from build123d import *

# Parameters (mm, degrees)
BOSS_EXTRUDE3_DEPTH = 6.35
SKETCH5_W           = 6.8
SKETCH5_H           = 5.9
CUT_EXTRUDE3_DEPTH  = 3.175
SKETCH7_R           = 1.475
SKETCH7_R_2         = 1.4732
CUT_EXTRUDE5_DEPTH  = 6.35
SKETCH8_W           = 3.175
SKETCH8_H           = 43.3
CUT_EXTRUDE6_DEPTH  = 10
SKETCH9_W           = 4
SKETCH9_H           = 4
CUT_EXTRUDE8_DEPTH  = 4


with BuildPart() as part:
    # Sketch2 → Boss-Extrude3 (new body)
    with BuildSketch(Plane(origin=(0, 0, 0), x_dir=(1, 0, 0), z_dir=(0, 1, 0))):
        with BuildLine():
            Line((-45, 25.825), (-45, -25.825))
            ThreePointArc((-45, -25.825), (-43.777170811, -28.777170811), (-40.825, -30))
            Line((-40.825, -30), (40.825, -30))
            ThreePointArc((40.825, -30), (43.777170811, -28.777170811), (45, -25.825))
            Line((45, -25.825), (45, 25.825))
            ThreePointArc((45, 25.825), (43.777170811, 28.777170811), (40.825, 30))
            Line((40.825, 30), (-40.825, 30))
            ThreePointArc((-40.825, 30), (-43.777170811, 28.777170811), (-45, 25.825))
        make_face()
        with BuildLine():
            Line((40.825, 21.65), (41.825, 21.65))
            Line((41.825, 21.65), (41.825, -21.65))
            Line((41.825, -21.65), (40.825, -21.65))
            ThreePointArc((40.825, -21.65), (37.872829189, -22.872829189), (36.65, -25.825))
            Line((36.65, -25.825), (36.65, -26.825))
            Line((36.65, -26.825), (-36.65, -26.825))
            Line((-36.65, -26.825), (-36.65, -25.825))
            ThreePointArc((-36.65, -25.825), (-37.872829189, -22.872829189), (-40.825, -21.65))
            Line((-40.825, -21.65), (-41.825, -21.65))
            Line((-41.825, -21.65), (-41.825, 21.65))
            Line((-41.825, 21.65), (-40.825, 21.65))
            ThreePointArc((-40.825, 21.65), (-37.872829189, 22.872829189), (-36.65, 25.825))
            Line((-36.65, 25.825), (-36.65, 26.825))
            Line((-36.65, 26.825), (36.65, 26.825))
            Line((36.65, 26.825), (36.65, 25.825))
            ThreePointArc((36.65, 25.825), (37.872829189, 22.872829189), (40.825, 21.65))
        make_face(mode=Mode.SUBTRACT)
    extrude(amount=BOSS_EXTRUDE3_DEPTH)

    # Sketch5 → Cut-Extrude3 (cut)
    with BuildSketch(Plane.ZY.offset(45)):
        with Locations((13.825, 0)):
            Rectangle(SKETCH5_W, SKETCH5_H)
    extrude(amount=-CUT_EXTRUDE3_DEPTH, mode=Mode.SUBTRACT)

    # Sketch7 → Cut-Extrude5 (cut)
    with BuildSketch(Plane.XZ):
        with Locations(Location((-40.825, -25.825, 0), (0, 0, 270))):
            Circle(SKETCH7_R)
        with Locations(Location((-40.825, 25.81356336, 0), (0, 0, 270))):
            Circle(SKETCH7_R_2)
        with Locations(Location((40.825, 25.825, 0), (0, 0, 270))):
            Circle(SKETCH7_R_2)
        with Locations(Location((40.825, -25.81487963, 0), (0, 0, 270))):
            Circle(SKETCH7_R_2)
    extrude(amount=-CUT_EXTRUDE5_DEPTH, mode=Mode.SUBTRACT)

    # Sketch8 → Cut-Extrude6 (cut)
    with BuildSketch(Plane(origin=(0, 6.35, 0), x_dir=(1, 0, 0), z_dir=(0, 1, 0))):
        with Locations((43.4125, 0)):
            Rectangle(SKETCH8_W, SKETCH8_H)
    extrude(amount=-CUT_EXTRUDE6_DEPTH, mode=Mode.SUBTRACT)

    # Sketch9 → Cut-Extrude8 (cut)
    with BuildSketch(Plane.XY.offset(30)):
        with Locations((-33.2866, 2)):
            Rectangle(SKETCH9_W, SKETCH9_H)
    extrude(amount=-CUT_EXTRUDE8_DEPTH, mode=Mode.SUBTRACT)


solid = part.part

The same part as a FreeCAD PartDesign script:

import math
import FreeCAD as App
import Part
import Sketcher
Q = App.Units.Quantity


def add_polygon(sketch, points):
    """Adds a closed chain of lines whose ends are joined by coincident constraints."""
    first, n = sketch.GeometryCount, len(points)
    for a, b in zip(points, points[1:] + points[:1]):
        sketch.addGeometry(Part.LineSegment(App.Vector(*a, 0), App.Vector(*b, 0)), False)
    for i in range(n):
        sketch.addConstraint(Sketcher.Constraint("Coincident", first + i, 2, first + (i + 1) % n, 1))

doc = App.newDocument("Part")
body = doc.addObject("PartDesign::Body", "Body")

sketch1 = body.newObject("Sketcher::SketchObject", "Sketch")
sketch1.AttachmentSupport = (doc.getObject("XZ_Plane"), [""])
sketch1.MapMode = "FlatFace"
sketch1.addGeometry(Part.LineSegment(App.Vector(-45, -25.825, 0), App.Vector(-45, 25.825, 0)), False)
sketch1.addGeometry(Part.ArcOfCircle(Part.Circle(App.Vector(-40.825, 25.825, 0), App.Vector(0, 0, 1), 4.175), math.radians(90), math.radians(180)), False)
sketch1.addGeometry(Part.LineSegment(App.Vector(-40.825, 30, 0), App.Vector(40.825, 30, 0)), False)
sketch1.addGeometry(Part.ArcOfCircle(Part.Circle(App.Vector(40.825, 25.825, 0), App.Vector(0, 0, 1), 4.175), math.radians(0), math.radians(90)), False)
sketch1.addGeometry(Part.LineSegment(App.Vector(45, 25.825, 0), App.Vector(45, -25.825, 0)), False)
sketch1.addGeometry(Part.ArcOfCircle(Part.Circle(App.Vector(40.825, -25.825, 0), App.Vector(0, 0, 1), 4.175), math.radians(-90), math.radians(0)), False)
sketch1.addGeometry(Part.LineSegment(App.Vector(40.825, -30, 0), App.Vector(-40.825, -30, 0)), False)
sketch1.addGeometry(Part.ArcOfCircle(Part.Circle(App.Vector(-40.825, -25.825, 0), App.Vector(0, 0, 1), 4.175), math.radians(-180), math.radians(-90)), False)
sketch1.addGeometry(Part.ArcOfCircle(Part.Circle(App.Vector(40.825, -25.825, 0), App.Vector(0, 0, 1), 4.175), math.radians(90), math.radians(180)), False)
sketch1.addGeometry(Part.LineSegment(App.Vector(40.825, -21.65, 0), App.Vector(41.825, -21.65, 0)), False)
sketch1.addGeometry(Part.LineSegment(App.Vector(41.825, -21.65, 0), App.Vector(41.825, 21.65, 0)), False)
sketch1.addGeometry(Part.LineSegment(App.Vector(41.825, 21.65, 0), App.Vector(40.825, 21.65, 0)), False)
sketch1.addGeometry(Part.ArcOfCircle(Part.Circle(App.Vector(40.825, 25.825, 0), App.Vector(0, 0, 1), 4.175), math.radians(-180), math.radians(-90)), False)
sketch1.addGeometry(Part.LineSegment(App.Vector(36.65, 25.825, 0), App.Vector(36.65, 26.825, 0)), False)
sketch1.addGeometry(Part.LineSegment(App.Vector(36.65, 26.825, 0), App.Vector(-36.65, 26.825, 0)), False)
sketch1.addGeometry(Part.LineSegment(App.Vector(-36.65, 26.825, 0), App.Vector(-36.65, 25.825, 0)), False)
sketch1.addGeometry(Part.ArcOfCircle(Part.Circle(App.Vector(-40.825, 25.825, 0), App.Vector(0, 0, 1), 4.175), math.radians(-90), math.radians(0)), False)
sketch1.addGeometry(Part.LineSegment(App.Vector(-40.825, 21.65, 0), App.Vector(-41.825, 21.65, 0)), False)
sketch1.addGeometry(Part.LineSegment(App.Vector(-41.825, 21.65, 0), App.Vector(-41.825, -21.65, 0)), False)
sketch1.addGeometry(Part.LineSegment(App.Vector(-41.825, -21.65, 0), App.Vector(-40.825, -21.65, 0)), False)
sketch1.addGeometry(Part.ArcOfCircle(Part.Circle(App.Vector(-40.825, -25.825, 0), App.Vector(0, 0, 1), 4.175), math.radians(0), math.radians(90)), False)
sketch1.addGeometry(Part.LineSegment(App.Vector(-36.65, -25.825, 0), App.Vector(-36.65, -26.825, 0)), False)
sketch1.addGeometry(Part.LineSegment(App.Vector(-36.65, -26.825, 0), App.Vector(36.65, -26.825, 0)), False)
sketch1.addGeometry(Part.LineSegment(App.Vector(36.65, -26.825, 0), App.Vector(36.65, -25.825, 0)), False)
sketch1.addConstraint(Sketcher.Constraint("Tangent", 0, 2, 1, 2))
sketch1.addConstraint(Sketcher.Constraint("Tangent", 1, 1, 2, 1))
sketch1.addConstraint(Sketcher.Constraint("Tangent", 2, 2, 3, 2))
sketch1.addConstraint(Sketcher.Constraint("Tangent", 3, 1, 4, 1))
sketch1.addConstraint(Sketcher.Constraint("Tangent", 4, 2, 5, 2))
sketch1.addConstraint(Sketcher.Constraint("Tangent", 5, 1, 6, 1))
sketch1.addConstraint(Sketcher.Constraint("Tangent", 6, 2, 7, 2))
sketch1.addConstraint(Sketcher.Constraint("Tangent", 7, 1, 0, 1))
sketch1.addConstraint(Sketcher.Constraint("Tangent", 8, 1, 9, 1))
sketch1.addConstraint(Sketcher.Constraint("Coincident", 9, 2, 10, 1))
sketch1.addConstraint(Sketcher.Constraint("Coincident", 10, 2, 11, 1))
sketch1.addConstraint(Sketcher.Constraint("Tangent", 11, 2, 12, 2))
sketch1.addConstraint(Sketcher.Constraint("Tangent", 12, 1, 13, 1))
sketch1.addConstraint(Sketcher.Constraint("Coincident", 13, 2, 14, 1))
sketch1.addConstraint(Sketcher.Constraint("Coincident", 14, 2, 15, 1))
sketch1.addConstraint(Sketcher.Constraint("Tangent", 15, 2, 16, 2))
sketch1.addConstraint(Sketcher.Constraint("Tangent", 16, 1, 17, 1))
sketch1.addConstraint(Sketcher.Constraint("Coincident", 17, 2, 18, 1))
sketch1.addConstraint(Sketcher.Constraint("Coincident", 18, 2, 19, 1))
sketch1.addConstraint(Sketcher.Constraint("Tangent", 19, 2, 20, 2))
sketch1.addConstraint(Sketcher.Constraint("Tangent", 20, 1, 21, 1))
sketch1.addConstraint(Sketcher.Constraint("Coincident", 21, 2, 22, 1))
sketch1.addConstraint(Sketcher.Constraint("Coincident", 22, 2, 23, 1))
sketch1.addConstraint(Sketcher.Constraint("Tangent", 23, 2, 8, 2))
sketch1.addConstraint(Sketcher.Constraint("Vertical", 0))
sketch1.addConstraint(Sketcher.Constraint("Horizontal", 2))
sketch1.addConstraint(Sketcher.Constraint("Vertical", 4))
sketch1.addConstraint(Sketcher.Constraint("Horizontal", 6))
sketch1.addConstraint(Sketcher.Constraint("Horizontal", 9))
sketch1.addConstraint(Sketcher.Constraint("Vertical", 10))
sketch1.addConstraint(Sketcher.Constraint("Horizontal", 11))
sketch1.addConstraint(Sketcher.Constraint("Vertical", 13))
sketch1.addConstraint(Sketcher.Constraint("Horizontal", 14))
sketch1.addConstraint(Sketcher.Constraint("Vertical", 15))
sketch1.addConstraint(Sketcher.Constraint("Horizontal", 17))
sketch1.addConstraint(Sketcher.Constraint("Vertical", 18))
sketch1.addConstraint(Sketcher.Constraint("Horizontal", 19))
sketch1.addConstraint(Sketcher.Constraint("Vertical", 21))
sketch1.addConstraint(Sketcher.Constraint("Horizontal", 22))
sketch1.addConstraint(Sketcher.Constraint("Vertical", 23))
sketch1.addConstraint(Sketcher.Constraint("Coincident", 8, 3, 5, 3))
sketch1.addConstraint(Sketcher.Constraint("Coincident", 12, 3, 3, 3))
sketch1.addConstraint(Sketcher.Constraint("Coincident", 16, 3, 1, 3))
sketch1.addConstraint(Sketcher.Constraint("Coincident", 20, 3, 7, 3))
sketch1.addConstraint(Sketcher.Constraint("Equal", 1, 3))
sketch1.addConstraint(Sketcher.Constraint("Equal", 3, 5))
sketch1.addConstraint(Sketcher.Constraint("Equal", 5, 7))
sketch1.addConstraint(Sketcher.Constraint("Equal", 7, 8))
sketch1.addConstraint(Sketcher.Constraint("Equal", 8, 12))
sketch1.addConstraint(Sketcher.Constraint("Equal", 12, 16))
sketch1.addConstraint(Sketcher.Constraint("Equal", 16, 20))
sketch1.addConstraint(Sketcher.Constraint("Symmetric", 1, 3, 5, 3, -1, 1))
sketch1.addConstraint(Sketcher.Constraint("Equal", 11, 17))
sketch1.addConstraint(Sketcher.Constraint("Equal", 19, 13))
sketch1.addConstraint(Sketcher.Constraint("Equal", 15, 21))
sketch1.addConstraint(Sketcher.Constraint("DistanceX", 9, 1, 9, 2, Q("1 mm")))
sketch1.addConstraint(Sketcher.Constraint("DistanceX", 14, 2, 14, 1, Q("73.3 mm")))
sketch1.addConstraint(Sketcher.Constraint("DistanceY", 10, 1, 10, 2, Q("43.3 mm")))
sketch1.addConstraint(Sketcher.Constraint("DistanceX", 0, 2, -1, 1, Q("45 mm")))
pad1 = body.newObject("PartDesign::Pad", "Pad")
pad1.Profile = sketch1
pad1.Length = 6.35
pad1.Reversed = True

sketch2 = body.newObject("Sketcher::SketchObject", "Sketch001")
sketch2.AttachmentSupport = (doc.getObject("YZ_Plane"), [""])
sketch2.MapMode = "FlatFace"
sketch2.AttachmentOffset = App.Placement(App.Vector(0, 0, -45), App.Rotation())
add_polygon(sketch2, [(2.95, 10.425), (-2.95, 10.425), (-2.95, 17.225), (2.95, 17.225)])
sketch2.addConstraint(Sketcher.Constraint("Horizontal", 0))
sketch2.addConstraint(Sketcher.Constraint("Vertical", 1))
sketch2.addConstraint(Sketcher.Constraint("Horizontal", 2))
sketch2.addConstraint(Sketcher.Constraint("Vertical", 3))
sketch2.addConstraint(Sketcher.Constraint("DistanceX", 0, 2, 0, 1, Q("5.9 mm")))
sketch2.addConstraint(Sketcher.Constraint("DistanceY", 1, 1, 1, 2, Q("6.8 mm")))
sketch2.addConstraint(Sketcher.Constraint("DistanceX", 0, 2, -1, 1, Q("2.95 mm")))
sketch2.addConstraint(Sketcher.Constraint("DistanceY", -1, 1, 0, 2, Q("10.425 mm")))
pocket1 = body.newObject("PartDesign::Pocket", "Pocket")
pocket1.Profile = sketch2
pocket1.Length = 3.175
pocket1.Reversed = True

sketch3 = body.newObject("Sketcher::SketchObject", "Sketch002")
sketch3.AttachmentSupport = (doc.getObject("XZ_Plane"), [""])
sketch3.MapMode = "FlatFace"
sketch3.addGeometry(Part.Circle(App.Vector(-40.825, -25.825, 0), App.Vector(0, 0, 1), 1.475), False)
sketch3.addGeometry(Part.Circle(App.Vector(-40.825, 25.813563, 0), App.Vector(0, 0, 1), 1.4732), False)
sketch3.addGeometry(Part.Circle(App.Vector(40.825, 25.825, 0), App.Vector(0, 0, 1), 1.4732), False)
sketch3.addGeometry(Part.Circle(App.Vector(40.825, -25.81488, 0), App.Vector(0, 0, 1), 1.4732), False)
sketch3.addConstraint(Sketcher.Constraint("Equal", 1, 2))
sketch3.addConstraint(Sketcher.Constraint("Equal", 2, 3))
sketch3.addConstraint(Sketcher.Constraint("Symmetric", 0, 3, 2, 3, -1, 1))
sketch3.addConstraint(Sketcher.Constraint("Vertical", 0, 3, 1, 3))
sketch3.addConstraint(Sketcher.Constraint("Vertical", 2, 3, 3, 3))
sketch3.addConstraint(Sketcher.Constraint("Diameter", 0, Q("2.95 mm")))
sketch3.addConstraint(Sketcher.Constraint("Diameter", 1, Q("2.9464 mm")))
sketch3.addConstraint(Sketcher.Constraint("DistanceX", 1, 3, 2, 3, Q("81.65 mm")))
sketch3.addConstraint(Sketcher.Constraint("DistanceY", 0, 3, 2, 3, Q("51.65 mm")))
sketch3.addConstraint(Sketcher.Constraint("DistanceY", 3, 3, -1, 1, Q("25.81488 mm")))
sketch3.addConstraint(Sketcher.Constraint("DistanceY", -1, 1, 1, 3, Q("25.813563 mm")))
pocket2 = body.newObject("PartDesign::Pocket", "Pocket001")
pocket2.Profile = sketch3
pocket2.Length = 6.35

sketch4 = body.newObject("Sketcher::SketchObject", "Sketch003")
sketch4.AttachmentSupport = (doc.getObject("XZ_Plane"), [""])
sketch4.MapMode = "FlatFace"
sketch4.AttachmentOffset = App.Placement(App.Vector(0, 0, -6.35), App.Rotation())
add_polygon(sketch4, [(41.825, -21.65), (41.825, 21.65), (45, 21.65), (45, -21.65)])
sketch4.addConstraint(Sketcher.Constraint("Vertical", 0))
sketch4.addConstraint(Sketcher.Constraint("Horizontal", 1))
sketch4.addConstraint(Sketcher.Constraint("Vertical", 2))
sketch4.addConstraint(Sketcher.Constraint("Horizontal", 3))
sketch4.addConstraint(Sketcher.Constraint("DistanceY", 0, 1, 0, 2, Q("43.3 mm")))
sketch4.addConstraint(Sketcher.Constraint("DistanceX", -1, 1, 1, 2, Q("45 mm")))
sketch4.addConstraint(Sketcher.Constraint("DistanceX", 1, 1, 1, 2, Q("3.175 mm")))
sketch4.addConstraint(Sketcher.Constraint("DistanceY", -1, 1, 0, 2, Q("21.65 mm")))
pocket3 = body.newObject("PartDesign::Pocket", "Pocket002")
pocket3.Profile = sketch4
pocket3.Length = 10
pocket3.Reversed = True

sketch5 = body.newObject("Sketcher::SketchObject", "Sketch004")
sketch5.AttachmentSupport = (doc.getObject("XY_Plane"), [""])
sketch5.MapMode = "FlatFace"
sketch5.AttachmentOffset = App.Placement(App.Vector(0, 0, 30), App.Rotation())
add_polygon(sketch5, [(-35.2866, 4), (-35.2866, 0), (-31.2866, 0), (-31.2866, 4)])
sketch5.addConstraint(Sketcher.Constraint("Vertical", 0))
sketch5.addConstraint(Sketcher.Constraint("Horizontal", 1))
sketch5.addConstraint(Sketcher.Constraint("Vertical", 2))
sketch5.addConstraint(Sketcher.Constraint("Horizontal", 3))
sketch5.addConstraint(Sketcher.Constraint("PointOnObject", 0, 2, -1))
sketch5.addConstraint(Sketcher.Constraint("Equal", 3, 0))
sketch5.addConstraint(Sketcher.Constraint("DistanceX", 1, 1, 1, 2, Q("4 mm")))
sketch5.addConstraint(Sketcher.Constraint("DistanceX", 0, 2, -1, 1, Q("35.2866 mm")))
pocket4 = body.newObject("PartDesign::Pocket", "Pocket003")
pocket4.Profile = sketch5
pocket4.Length = 4

doc.recompute()
